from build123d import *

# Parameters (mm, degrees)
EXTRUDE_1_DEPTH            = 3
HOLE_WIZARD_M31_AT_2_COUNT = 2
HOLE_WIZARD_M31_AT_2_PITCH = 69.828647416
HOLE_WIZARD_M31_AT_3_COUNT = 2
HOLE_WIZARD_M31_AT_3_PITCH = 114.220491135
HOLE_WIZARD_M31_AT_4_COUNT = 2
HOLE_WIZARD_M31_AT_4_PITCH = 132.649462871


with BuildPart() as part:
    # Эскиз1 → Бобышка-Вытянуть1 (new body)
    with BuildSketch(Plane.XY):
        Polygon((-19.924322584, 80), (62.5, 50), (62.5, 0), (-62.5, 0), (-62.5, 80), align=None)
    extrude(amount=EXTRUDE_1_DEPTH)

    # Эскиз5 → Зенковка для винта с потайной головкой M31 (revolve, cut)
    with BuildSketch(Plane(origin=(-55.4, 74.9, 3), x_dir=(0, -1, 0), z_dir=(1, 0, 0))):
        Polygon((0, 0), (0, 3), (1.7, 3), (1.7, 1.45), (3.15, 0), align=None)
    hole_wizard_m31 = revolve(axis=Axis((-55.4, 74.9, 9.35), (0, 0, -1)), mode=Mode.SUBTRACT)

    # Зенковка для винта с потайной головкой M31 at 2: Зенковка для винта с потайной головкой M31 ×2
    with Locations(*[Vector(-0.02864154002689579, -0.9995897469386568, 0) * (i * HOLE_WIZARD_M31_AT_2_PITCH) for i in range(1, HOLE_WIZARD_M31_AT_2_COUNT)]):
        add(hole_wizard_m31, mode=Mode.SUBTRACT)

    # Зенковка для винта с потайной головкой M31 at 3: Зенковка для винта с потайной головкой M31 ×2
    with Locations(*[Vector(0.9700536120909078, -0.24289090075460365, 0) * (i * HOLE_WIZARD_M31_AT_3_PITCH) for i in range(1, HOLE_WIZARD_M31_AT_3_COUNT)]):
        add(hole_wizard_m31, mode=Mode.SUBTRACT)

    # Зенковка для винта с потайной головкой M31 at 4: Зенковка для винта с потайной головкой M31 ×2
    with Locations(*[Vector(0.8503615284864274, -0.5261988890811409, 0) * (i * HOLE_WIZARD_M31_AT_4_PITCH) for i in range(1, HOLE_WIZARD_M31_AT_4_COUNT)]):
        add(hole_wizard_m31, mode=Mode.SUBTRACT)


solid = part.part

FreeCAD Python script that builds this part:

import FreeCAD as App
import Part
import Sketcher
Q = App.Units.Quantity


def add_polygon(sketch, points):
    """Adds a closed chain of lines whose ends are joined by coincident constraints."""
    first, n = sketch.GeometryCount, len(points)
    for a, b in zip(points, points[1:] + points[:1]):
        sketch.addGeometry(Part.LineSegment(App.Vector(*a, 0), App.Vector(*b, 0)), False)
    for i in range(n):
        sketch.addConstraint(Sketcher.Constraint("Coincident", first + i, 2, first + (i + 1) % n, 1))

doc = App.newDocument("Part")
body = doc.addObject("PartDesign::Body", "Body")

# Sketch on XY plane
sketch1 = body.newObject("Sketcher::SketchObject", "Sketch")
sketch1.AttachmentSupport = (doc.getObject("XY_Plane"), [""])
sketch1.MapMode = "FlatFace"
add_polygon(sketch1, [(62, 50), (-20, 80), (-62, 80), (-62, 0), (62, 0)])  # lines 0-4
sketch1.addConstraint([
    Sketcher.Constraint("Horizontal", 1),
    Sketcher.Constraint("Vertical", 2),
    Sketcher.Constraint("Horizontal", 3),
    Sketcher.Constraint("Vertical", 4),
    Sketcher.Constraint("Symmetric", 2, 2, 3, 2, -1, 1),
    Sketcher.Constraint("DistanceX", 3, 1, 3, 2, 125.0),
    Sketcher.Constraint("DistanceY", 2, 2, 2, 1, 80.0),
    Sketcher.Constraint("DistanceY", 4, 1, 4, 2, 50.0),
    Sketcher.Constraint("Angle", 0, Q("160 deg")),
])
pad1 = body.newObject("PartDesign::Pad", "Pad")
pad1.Profile = sketch1
pad1.Length = 3

# Sketch on YZ plane
sketch2 = body.newObject("Sketcher::SketchObject", "Sketch001")
sketch2.AttachmentSupport = (doc.getObject("YZ_Plane"), [""])
sketch2.MapMode = "FlatFace"
sketch2.AttachmentOffset = App.Placement(App.Vector(0, 0, -55.4), App.Rotation())
add_polygon(sketch2, [(74.9, 0), (74.9, 3), (71.8, 3), (73.2, 1.6), (73.2, 0)])  # lines 0-4
sketch2.addGeometry(Part.LineSegment(App.Vector(74.9, 3, 0), App.Vector(74.9, 0, 0)), True)  # axis
sketch2.addConstraint([
    Sketcher.Constraint("Vertical", 0),
    Sketcher.Constraint("Horizontal", 1),
    Sketcher.Constraint("Vertical", 3),
    Sketcher.Constraint("Horizontal", 4),
    Sketcher.Constraint("Vertical", 5),
    Sketcher.Constraint("Coincident", 5, 1, 0, 2),
    Sketcher.Constraint("PointOnObject", 3, 2, -1),
    Sketcher.Constraint("PointOnObject", 5, 2, -1),
    Sketcher.Constraint("DistanceY", 0, 1, 0, 2, 3.0),
    Sketcher.Constraint("Angle", 2, Q("-45 deg")),
    Sketcher.Constraint("DistanceX", 4, 1, 4, 2, 1.7),
    Sketcher.Constraint("DistanceX", 1, 2, 1, 1, 3.15),
    Sketcher.Constraint("DistanceX", -1, 1, 0, 2, 74.9),
])
groove = body.newObject("PartDesign::Groove", "Groove")
groove.Profile = sketch2
groove.ReferenceAxis = (sketch2, ["Axis0"])
groove.Angle = 360
doc.recompute()

datumline = body.newObject("PartDesign::Line", "DatumLine")
datumline.Placement = App.Placement(App.Vector(0, 0, 0), App.Rotation(App.Vector(0, 0, 1), App.Vector(-0.02864154, -0.999589747, 0)))
linearpattern = body.newObject("PartDesign::LinearPattern", "LinearPattern")
linearpattern.Originals = [groove]
linearpattern.Direction = (datumline, [""])
linearpattern.Mode = "offset"
linearpattern.Offset = 69.828647
linearpattern.Occurrences = 2
body.Tip = linearpattern
doc.recompute()

datumline2 = body.newObject("PartDesign::Line", "DatumLine001")
datumline2.Placement = App.Placement(App.Vector(0, 0, 0), App.Rotation(App.Vector(0, 0, 1), App.Vector(0.970053612, -0.242890901, 0)))
linearpattern2 = body.newObject("PartDesign::LinearPattern", "LinearPattern001")
linearpattern2.Originals = [groove]
linearpattern2.Direction = (datumline2, [""])
linearpattern2.Mode = "offset"
linearpattern2.Offset = 114.220491
linearpattern2.Occurrences = 2
body.Tip = linearpattern2
doc.recompute()

datumline3 = body.newObject("PartDesign::Line", "DatumLine002")
datumline3.Placement = App.Placement(App.Vector(0, 0, 0), App.Rotation(App.Vector(0, 0, 1), App.Vector(0.850361528, -0.526198889, 0)))
linearpattern3 = body.newObject("PartDesign::LinearPattern", "LinearPattern002")
linearpattern3.Originals = [groove]
linearpattern3.Direction = (datumline3, [""])
linearpattern3.Mode = "offset"
linearpattern3.Offset = 132.649463
linearpattern3.Occurrences = 2
body.Tip = linearpattern3

doc.recompute()
